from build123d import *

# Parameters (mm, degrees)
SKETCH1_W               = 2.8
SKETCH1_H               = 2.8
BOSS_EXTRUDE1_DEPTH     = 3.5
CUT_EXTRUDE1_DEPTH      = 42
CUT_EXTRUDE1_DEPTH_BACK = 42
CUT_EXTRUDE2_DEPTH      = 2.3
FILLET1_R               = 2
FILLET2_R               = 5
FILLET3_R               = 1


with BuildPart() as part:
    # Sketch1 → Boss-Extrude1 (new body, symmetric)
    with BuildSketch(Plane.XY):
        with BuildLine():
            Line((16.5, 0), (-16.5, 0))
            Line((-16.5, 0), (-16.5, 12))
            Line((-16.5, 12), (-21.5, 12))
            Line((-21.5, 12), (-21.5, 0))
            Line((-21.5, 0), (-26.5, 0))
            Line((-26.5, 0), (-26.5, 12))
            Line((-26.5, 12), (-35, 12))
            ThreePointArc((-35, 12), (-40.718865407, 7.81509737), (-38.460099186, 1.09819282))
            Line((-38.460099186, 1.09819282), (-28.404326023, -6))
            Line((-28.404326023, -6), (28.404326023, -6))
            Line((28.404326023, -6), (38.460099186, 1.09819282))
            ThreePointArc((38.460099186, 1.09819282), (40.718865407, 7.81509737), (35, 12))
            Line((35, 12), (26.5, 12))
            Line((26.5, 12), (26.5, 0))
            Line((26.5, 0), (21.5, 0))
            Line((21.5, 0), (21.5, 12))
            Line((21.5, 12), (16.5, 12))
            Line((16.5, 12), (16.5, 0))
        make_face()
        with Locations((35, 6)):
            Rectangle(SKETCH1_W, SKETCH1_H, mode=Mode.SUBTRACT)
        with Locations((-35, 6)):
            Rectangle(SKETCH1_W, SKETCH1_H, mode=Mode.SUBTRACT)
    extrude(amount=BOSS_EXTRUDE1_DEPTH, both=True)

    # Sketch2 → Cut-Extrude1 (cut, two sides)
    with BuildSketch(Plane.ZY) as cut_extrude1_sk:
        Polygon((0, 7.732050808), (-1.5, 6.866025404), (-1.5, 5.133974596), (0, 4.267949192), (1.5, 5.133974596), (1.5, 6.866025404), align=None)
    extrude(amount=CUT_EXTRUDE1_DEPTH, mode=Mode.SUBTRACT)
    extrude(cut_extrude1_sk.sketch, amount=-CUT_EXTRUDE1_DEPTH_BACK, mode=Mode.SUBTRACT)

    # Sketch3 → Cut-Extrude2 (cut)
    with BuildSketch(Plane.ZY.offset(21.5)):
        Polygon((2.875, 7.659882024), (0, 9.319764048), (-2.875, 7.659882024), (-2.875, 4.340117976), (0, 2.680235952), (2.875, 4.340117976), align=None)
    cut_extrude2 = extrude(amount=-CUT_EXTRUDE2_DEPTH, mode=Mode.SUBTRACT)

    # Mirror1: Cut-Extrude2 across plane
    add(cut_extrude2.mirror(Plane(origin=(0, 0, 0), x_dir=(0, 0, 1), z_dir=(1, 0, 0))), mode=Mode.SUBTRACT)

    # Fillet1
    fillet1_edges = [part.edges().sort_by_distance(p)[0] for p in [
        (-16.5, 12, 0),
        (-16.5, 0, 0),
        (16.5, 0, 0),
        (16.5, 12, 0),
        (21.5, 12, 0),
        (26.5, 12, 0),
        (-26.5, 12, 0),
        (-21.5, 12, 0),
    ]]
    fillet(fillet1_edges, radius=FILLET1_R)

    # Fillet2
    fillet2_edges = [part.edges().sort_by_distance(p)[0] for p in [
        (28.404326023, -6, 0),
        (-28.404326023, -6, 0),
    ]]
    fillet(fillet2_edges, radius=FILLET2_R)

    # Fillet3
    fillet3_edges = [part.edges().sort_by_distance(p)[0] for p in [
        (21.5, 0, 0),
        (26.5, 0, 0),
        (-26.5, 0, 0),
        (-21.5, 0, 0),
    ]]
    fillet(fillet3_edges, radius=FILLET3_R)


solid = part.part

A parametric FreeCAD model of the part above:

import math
import FreeCAD as App
import Part
import Sketcher

V = App.Vector
Q = App.Units.Quantity


def edges_at(feature, points):
    """Names of the edges that pass closest to the given points."""
    edges = feature.Shape.Edges
    near = lambda p: min(range(len(edges)), key=lambda i: edges[i].distToShape(Part.Vertex(*p))[0])
    return sorted({f"Edge{near(p) + 1}" for p in points})


def add_polygon(sketch, points):
    """Adds a closed chain of lines whose ends are joined by coincident constraints."""
    first, n = sketch.GeometryCount, len(points)
    for a, b in zip(points, points[1:] + points[:1]):
        sketch.addGeometry(Part.LineSegment(App.Vector(*a, 0), App.Vector(*b, 0)), False)
    for i in range(n):
        sketch.addConstraint(Sketcher.Constraint("Coincident", first + i, 2, first + (i + 1) % n, 1))

doc = App.newDocument("Part")
body = doc.addObject("PartDesign::Body", "Body")

sketch1 = body.newObject("Sketcher::SketchObject", "Sketch")
sketch1.AttachmentSupport = (doc.getObject("XY_Plane"), [""])
sketch1.MapMode = "FlatFace"
sketch1.addGeometry(Part.LineSegment(V(16.5, 0, 0), V(-16.5, 0, 0)), False)
sketch1.addGeometry(Part.LineSegment(V(-16.5, 0, 0), V(-16.5, 12, 0)), False)
sketch1.addGeometry(Part.LineSegment(V(-16.5, 12, 0), V(-21.5, 12, 0)), False)
sketch1.addGeometry(Part.LineSegment(V(-21.5, 12, 0), V(-21.5, 0, 0)), False)
sketch1.addGeometry(Part.LineSegment(V(-21.5, 0, 0), V(-26.5, 0, 0)), False)
sketch1.addGeometry(Part.LineSegment(V(-26.5, 0, 0), V(-26.5, 12, 0)), False)
sketch1.addGeometry(Part.LineSegment(V(-26.5, 12, 0), V(-35, 12, 0)), False)
sketch1.addGeometry(Part.ArcOfCircle(Part.Circle(V(-35, 6, 0), V(0, 0, 1), 6), math.radians(90), math.radians(235)), False)
sketch1.addGeometry(Part.LineSegment(V(-38.5, 1.1, 0), V(-28.4, -6, 0)), False)
sketch1.addGeometry(Part.LineSegment(V(-28.4, -6, 0), V(28.4, -6, 0)), False)
sketch1.addGeometry(Part.LineSegment(V(28.4, -6, 0), V(38.5, 1.1, 0)), False)
sketch1.addGeometry(Part.ArcOfCircle(Part.Circle(V(35, 6, 0), V(0, 0, 1), 6), math.radians(-55), math.radians(90)), False)
sketch1.addGeometry(Part.LineSegment(V(35, 12, 0), V(26.5, 12, 0)), False)
sketch1.addGeometry(Part.LineSegment(V(26.5, 12, 0), V(26.5, 0, 0)), False)
sketch1.addGeometry(Part.LineSegment(V(26.5, 0, 0), V(21.5, 0, 0)), False)
sketch1.addGeometry(Part.LineSegment(V(21.5, 0, 0), V(21.5, 12, 0)), False)
sketch1.addGeometry(Part.LineSegment(V(21.5, 12, 0), V(16.5, 12, 0)), False)
sketch1.addGeometry(Part.LineSegment(V(16.5, 12, 0), V(16.5, 0, 0)), False)
add_polygon(sketch1, [(-33.6, 4.6), (-36.4, 4.6), (-36.4, 7.4), (-33.6, 7.4)])
add_polygon(sketch1, [(36.4, 4.6), (33.6, 4.6), (33.6, 7.4), (36.4, 7.4)])
sketch1.addConstraint([
    Sketcher.Constraint("Coincident", 0, 2, 1, 1),
    Sketcher.Constraint("Coincident", 1, 2, 2, 1),
    Sketcher.Constraint("Coincident", 2, 2, 3, 1),
    Sketcher.Constraint("Coincident", 3, 2, 4, 1),
    Sketcher.Constraint("Coincident", 4, 2, 5, 1),
    Sketcher.Constraint("Coincident", 5, 2, 6, 1),
    Sketcher.Constraint("Tangent", 6, 2, 7, 1),
    Sketcher.Constraint("Tangent", 7, 2, 8, 1),
    Sketcher.Constraint("Coincident", 8, 2, 9, 1),
    Sketcher.Constraint("Coincident", 9, 2, 10, 1),
    Sketcher.Constraint("Tangent", 10, 2, 11, 1),
    Sketcher.Constraint("Tangent", 11, 2, 12, 1),
    Sketcher.Constraint("Coincident", 12, 2, 13, 1),
    Sketcher.Constraint("Coincident", 13, 2, 14, 1),
    Sketcher.Constraint("Coincident", 14, 2, 15, 1),
    Sketcher.Constraint("Coincident", 15, 2, 16, 1),
    Sketcher.Constraint("Coincident", 16, 2, 17, 1),
    Sketcher.Constraint("Coincident", 17, 2, 0, 1),
    Sketcher.Constraint("Horizontal", 0),
    Sketcher.Constraint("Vertical", 1),
    Sketcher.Constraint("Horizontal", 2),
    Sketcher.Constraint("Vertical", 3),
    Sketcher.Constraint("Horizontal", 4),
    Sketcher.Constraint("Vertical", 5),
    Sketcher.Constraint("Horizontal", 6),
    Sketcher.Constraint("Horizontal", 9),
    Sketcher.Constraint("Horizontal", 12),
    Sketcher.Constraint("Vertical", 13),
    Sketcher.Constraint("Horizontal", 14),
    Sketcher.Constraint("Vertical", 15),
    Sketcher.Constraint("Horizontal", 16),
    Sketcher.Constraint("Vertical", 17),
    Sketcher.Constraint("Horizontal", 18),
    Sketcher.Constraint("Vertical", 19),
    Sketcher.Constraint("Horizontal", 20),
    Sketcher.Constraint("Vertical", 21),
    Sketcher.Constraint("Horizontal", 22),
    Sketcher.Constraint("Vertical", 23),
    Sketcher.Constraint("Horizontal", 24),
    Sketcher.Constraint("Vertical", 25),
    Sketcher.Constraint("Equal", 7, 11),
    Sketcher.Constraint("Symmetric", 4, 2, 13, 2, -1, 1),
    Sketcher.Constraint("Symmetric", 0, 2, 17, 2, -1, 1),
    Sketcher.Constraint("Symmetric", 7, 3, 11, 3, -2),
    Sketcher.Constraint("Symmetric", 3, 2, 14, 2, -2),
    Sketcher.Constraint("Symmetric", 21, 2, 22, 2, -2),
    Sketcher.Constraint("Symmetric", 19, 2, 24, 2, -2),
    Sketcher.Constraint("Horizontal", 2, 2, 5, 2),
    Sketcher.Constraint("Horizontal", 7, 2, 10, 2),
    Sketcher.Constraint("Horizontal", 12, 2, 15, 2),
    Sketcher.Constraint("Equal", 2, 4),
    Sketcher.Constraint("Equal", 24, 19),
    Sketcher.Constraint("Radius", 7, 6.0),
    Sketcher.Constraint("DistanceX", 0, 2, 0, 1, 33.0),
    Sketcher.Constraint("DistanceX", 2, 2, 2, 1, 5.0),
    Sketcher.Constraint("DistanceY", 1, 1, 1, 2, 12.0),
    Sketcher.Constraint("DistanceX", 6, 2, 6, 1, 8.5),
    Sketcher.Constraint("DistanceX", 18, 2, 18, 1, 2.8),
    Sketcher.Constraint("DistanceY", 8, 2, -1, 1, 6.0),
    Sketcher.Constraint("DistanceX", 18, 2, -1, 1, 36.4),
    Sketcher.Constraint("DistanceY", -1, 1, 18, 2, 4.6),
    Sketcher.Constraint("DistanceX", 7, 2, -1, 1, 38.460099),
])
pad1 = body.newObject("PartDesign::Pad", "Pad")
pad1.Profile = sketch1
pad1.Length = 7
pad1.Midplane = True

sketch2 = body.newObject("Sketcher::SketchObject", "Sketch001")
sketch2.AttachmentSupport = (doc.getObject("YZ_Plane"), [""])
sketch2.MapMode = "FlatFace"
add_polygon(sketch2, [(7.7, 0), (6.9, -1.5), (5.1, -1.5), (4.3, 0), (5.1, 1.5), (6.9, 1.5)])
sketch2.addConstraint([
    Sketcher.Constraint("Horizontal", 1),
    Sketcher.Constraint("Horizontal", 4),
    Sketcher.Constraint("Symmetric", 1, 2, 3, 2, -1),
    Sketcher.Constraint("PointOnObject", 2, 2, -1),
    Sketcher.Constraint("PointOnObject", 5, 2, -1),
    Sketcher.Constraint("Parallel", 0, 3),
    Sketcher.Constraint("Parallel", 2, 5),
    Sketcher.Constraint("Angle", 0, Q("-120 deg")),
    Sketcher.Constraint("DistanceY", 1, 2, 3, 2, 3.0),
    Sketcher.Constraint("DistanceX", 1, 2, 1, 1, 1.732051),
    Sketcher.Constraint("DistanceX", -1, 1, 2, 2, 4.267949),
])
pocket1 = body.newObject("PartDesign::Pocket", "Pocket")
pocket1.Profile = sketch2
pocket1.Type = "ThroughAll"
pocket1.Midplane = True

sketch3 = body.newObject("Sketcher::SketchObject", "Sketch002")
sketch3.AttachmentSupport = (doc.getObject("YZ_Plane"), [""])
sketch3.MapMode = "FlatFace"
sketch3.AttachmentOffset = App.Placement(V(0, 0, -21.5), App.Rotation())
add_polygon(sketch3, [(7.7, 2.9), (9.3, 0), (7.7, -2.9), (4.3, -2.9), (2.7, 0), (4.3, 2.9)])
sketch3.addConstraint([
    Sketcher.Constraint("Horizontal", 2),
    Sketcher.Constraint("Horizontal", 5),
    Sketcher.Constraint("Symmetric", 2, 2, 4, 2, -1),
    Sketcher.Constraint("PointOnObject", 0, 2, -1),
    Sketcher.Constraint("PointOnObject", 3, 2, -1),
    Sketcher.Constraint("Parallel", 0, 3),
    Sketcher.Constraint("Parallel", 1, 4),
    Sketcher.Constraint("Angle", 0, Q("-60 deg")),
    Sketcher.Constraint("DistanceY", 2, 2, 4, 2, 5.75),
    Sketcher.Constraint("DistanceX", 2, 2, 2, 1, 3.319764),
    Sketcher.Constraint("DistanceX", -1, 1, 0, 2, 9.319764),
])
pocket2 = body.newObject("PartDesign::Pocket", "Pocket001")
pocket2.Profile = sketch3
pocket2.Length = 2.3
pocket2.Reversed = True
doc.recompute()

mirrored = body.newObject("PartDesign::Mirrored", "Mirrored")
mirrored.Originals = [pocket2]
mirrored.MirrorPlane = (doc.getObject("YZ_Plane"), [""])
body.Tip = mirrored
doc.recompute()

fillet = body.newObject("PartDesign::Fillet", "Fillet")
fillet.Base = (mirrored, edges_at(mirrored, [
    (-16.5, 12, 0),
    (-16.5, 0, 0),
    (16.5, 0, 0),
    (16.5, 12, 0),
    (21.5, 12, 0),
    (26.5, 12, 0),
    (-26.5, 12, 0),
    (-21.5, 12, 0),
]))
fillet.Radius = 2
doc.recompute()

fillet2 = body.newObject("PartDesign::Fillet", "Fillet001")
fillet2.Base = (fillet, edges_at(fillet, [(28.404, -6, 0), (-28.404, -6, 0)]))
fillet2.Radius = 5
doc.recompute()

fillet3 = body.newObject("PartDesign::Fillet", "Fillet002")
fillet3.Base = (fillet2, edges_at(fillet2, [
    (21.5, 0, 0),
    (26.5, 0, 0),
    (-26.5, 0, 0),
    (-21.5, 0, 0),
]))
fillet3.Radius = 1

doc.recompute()
